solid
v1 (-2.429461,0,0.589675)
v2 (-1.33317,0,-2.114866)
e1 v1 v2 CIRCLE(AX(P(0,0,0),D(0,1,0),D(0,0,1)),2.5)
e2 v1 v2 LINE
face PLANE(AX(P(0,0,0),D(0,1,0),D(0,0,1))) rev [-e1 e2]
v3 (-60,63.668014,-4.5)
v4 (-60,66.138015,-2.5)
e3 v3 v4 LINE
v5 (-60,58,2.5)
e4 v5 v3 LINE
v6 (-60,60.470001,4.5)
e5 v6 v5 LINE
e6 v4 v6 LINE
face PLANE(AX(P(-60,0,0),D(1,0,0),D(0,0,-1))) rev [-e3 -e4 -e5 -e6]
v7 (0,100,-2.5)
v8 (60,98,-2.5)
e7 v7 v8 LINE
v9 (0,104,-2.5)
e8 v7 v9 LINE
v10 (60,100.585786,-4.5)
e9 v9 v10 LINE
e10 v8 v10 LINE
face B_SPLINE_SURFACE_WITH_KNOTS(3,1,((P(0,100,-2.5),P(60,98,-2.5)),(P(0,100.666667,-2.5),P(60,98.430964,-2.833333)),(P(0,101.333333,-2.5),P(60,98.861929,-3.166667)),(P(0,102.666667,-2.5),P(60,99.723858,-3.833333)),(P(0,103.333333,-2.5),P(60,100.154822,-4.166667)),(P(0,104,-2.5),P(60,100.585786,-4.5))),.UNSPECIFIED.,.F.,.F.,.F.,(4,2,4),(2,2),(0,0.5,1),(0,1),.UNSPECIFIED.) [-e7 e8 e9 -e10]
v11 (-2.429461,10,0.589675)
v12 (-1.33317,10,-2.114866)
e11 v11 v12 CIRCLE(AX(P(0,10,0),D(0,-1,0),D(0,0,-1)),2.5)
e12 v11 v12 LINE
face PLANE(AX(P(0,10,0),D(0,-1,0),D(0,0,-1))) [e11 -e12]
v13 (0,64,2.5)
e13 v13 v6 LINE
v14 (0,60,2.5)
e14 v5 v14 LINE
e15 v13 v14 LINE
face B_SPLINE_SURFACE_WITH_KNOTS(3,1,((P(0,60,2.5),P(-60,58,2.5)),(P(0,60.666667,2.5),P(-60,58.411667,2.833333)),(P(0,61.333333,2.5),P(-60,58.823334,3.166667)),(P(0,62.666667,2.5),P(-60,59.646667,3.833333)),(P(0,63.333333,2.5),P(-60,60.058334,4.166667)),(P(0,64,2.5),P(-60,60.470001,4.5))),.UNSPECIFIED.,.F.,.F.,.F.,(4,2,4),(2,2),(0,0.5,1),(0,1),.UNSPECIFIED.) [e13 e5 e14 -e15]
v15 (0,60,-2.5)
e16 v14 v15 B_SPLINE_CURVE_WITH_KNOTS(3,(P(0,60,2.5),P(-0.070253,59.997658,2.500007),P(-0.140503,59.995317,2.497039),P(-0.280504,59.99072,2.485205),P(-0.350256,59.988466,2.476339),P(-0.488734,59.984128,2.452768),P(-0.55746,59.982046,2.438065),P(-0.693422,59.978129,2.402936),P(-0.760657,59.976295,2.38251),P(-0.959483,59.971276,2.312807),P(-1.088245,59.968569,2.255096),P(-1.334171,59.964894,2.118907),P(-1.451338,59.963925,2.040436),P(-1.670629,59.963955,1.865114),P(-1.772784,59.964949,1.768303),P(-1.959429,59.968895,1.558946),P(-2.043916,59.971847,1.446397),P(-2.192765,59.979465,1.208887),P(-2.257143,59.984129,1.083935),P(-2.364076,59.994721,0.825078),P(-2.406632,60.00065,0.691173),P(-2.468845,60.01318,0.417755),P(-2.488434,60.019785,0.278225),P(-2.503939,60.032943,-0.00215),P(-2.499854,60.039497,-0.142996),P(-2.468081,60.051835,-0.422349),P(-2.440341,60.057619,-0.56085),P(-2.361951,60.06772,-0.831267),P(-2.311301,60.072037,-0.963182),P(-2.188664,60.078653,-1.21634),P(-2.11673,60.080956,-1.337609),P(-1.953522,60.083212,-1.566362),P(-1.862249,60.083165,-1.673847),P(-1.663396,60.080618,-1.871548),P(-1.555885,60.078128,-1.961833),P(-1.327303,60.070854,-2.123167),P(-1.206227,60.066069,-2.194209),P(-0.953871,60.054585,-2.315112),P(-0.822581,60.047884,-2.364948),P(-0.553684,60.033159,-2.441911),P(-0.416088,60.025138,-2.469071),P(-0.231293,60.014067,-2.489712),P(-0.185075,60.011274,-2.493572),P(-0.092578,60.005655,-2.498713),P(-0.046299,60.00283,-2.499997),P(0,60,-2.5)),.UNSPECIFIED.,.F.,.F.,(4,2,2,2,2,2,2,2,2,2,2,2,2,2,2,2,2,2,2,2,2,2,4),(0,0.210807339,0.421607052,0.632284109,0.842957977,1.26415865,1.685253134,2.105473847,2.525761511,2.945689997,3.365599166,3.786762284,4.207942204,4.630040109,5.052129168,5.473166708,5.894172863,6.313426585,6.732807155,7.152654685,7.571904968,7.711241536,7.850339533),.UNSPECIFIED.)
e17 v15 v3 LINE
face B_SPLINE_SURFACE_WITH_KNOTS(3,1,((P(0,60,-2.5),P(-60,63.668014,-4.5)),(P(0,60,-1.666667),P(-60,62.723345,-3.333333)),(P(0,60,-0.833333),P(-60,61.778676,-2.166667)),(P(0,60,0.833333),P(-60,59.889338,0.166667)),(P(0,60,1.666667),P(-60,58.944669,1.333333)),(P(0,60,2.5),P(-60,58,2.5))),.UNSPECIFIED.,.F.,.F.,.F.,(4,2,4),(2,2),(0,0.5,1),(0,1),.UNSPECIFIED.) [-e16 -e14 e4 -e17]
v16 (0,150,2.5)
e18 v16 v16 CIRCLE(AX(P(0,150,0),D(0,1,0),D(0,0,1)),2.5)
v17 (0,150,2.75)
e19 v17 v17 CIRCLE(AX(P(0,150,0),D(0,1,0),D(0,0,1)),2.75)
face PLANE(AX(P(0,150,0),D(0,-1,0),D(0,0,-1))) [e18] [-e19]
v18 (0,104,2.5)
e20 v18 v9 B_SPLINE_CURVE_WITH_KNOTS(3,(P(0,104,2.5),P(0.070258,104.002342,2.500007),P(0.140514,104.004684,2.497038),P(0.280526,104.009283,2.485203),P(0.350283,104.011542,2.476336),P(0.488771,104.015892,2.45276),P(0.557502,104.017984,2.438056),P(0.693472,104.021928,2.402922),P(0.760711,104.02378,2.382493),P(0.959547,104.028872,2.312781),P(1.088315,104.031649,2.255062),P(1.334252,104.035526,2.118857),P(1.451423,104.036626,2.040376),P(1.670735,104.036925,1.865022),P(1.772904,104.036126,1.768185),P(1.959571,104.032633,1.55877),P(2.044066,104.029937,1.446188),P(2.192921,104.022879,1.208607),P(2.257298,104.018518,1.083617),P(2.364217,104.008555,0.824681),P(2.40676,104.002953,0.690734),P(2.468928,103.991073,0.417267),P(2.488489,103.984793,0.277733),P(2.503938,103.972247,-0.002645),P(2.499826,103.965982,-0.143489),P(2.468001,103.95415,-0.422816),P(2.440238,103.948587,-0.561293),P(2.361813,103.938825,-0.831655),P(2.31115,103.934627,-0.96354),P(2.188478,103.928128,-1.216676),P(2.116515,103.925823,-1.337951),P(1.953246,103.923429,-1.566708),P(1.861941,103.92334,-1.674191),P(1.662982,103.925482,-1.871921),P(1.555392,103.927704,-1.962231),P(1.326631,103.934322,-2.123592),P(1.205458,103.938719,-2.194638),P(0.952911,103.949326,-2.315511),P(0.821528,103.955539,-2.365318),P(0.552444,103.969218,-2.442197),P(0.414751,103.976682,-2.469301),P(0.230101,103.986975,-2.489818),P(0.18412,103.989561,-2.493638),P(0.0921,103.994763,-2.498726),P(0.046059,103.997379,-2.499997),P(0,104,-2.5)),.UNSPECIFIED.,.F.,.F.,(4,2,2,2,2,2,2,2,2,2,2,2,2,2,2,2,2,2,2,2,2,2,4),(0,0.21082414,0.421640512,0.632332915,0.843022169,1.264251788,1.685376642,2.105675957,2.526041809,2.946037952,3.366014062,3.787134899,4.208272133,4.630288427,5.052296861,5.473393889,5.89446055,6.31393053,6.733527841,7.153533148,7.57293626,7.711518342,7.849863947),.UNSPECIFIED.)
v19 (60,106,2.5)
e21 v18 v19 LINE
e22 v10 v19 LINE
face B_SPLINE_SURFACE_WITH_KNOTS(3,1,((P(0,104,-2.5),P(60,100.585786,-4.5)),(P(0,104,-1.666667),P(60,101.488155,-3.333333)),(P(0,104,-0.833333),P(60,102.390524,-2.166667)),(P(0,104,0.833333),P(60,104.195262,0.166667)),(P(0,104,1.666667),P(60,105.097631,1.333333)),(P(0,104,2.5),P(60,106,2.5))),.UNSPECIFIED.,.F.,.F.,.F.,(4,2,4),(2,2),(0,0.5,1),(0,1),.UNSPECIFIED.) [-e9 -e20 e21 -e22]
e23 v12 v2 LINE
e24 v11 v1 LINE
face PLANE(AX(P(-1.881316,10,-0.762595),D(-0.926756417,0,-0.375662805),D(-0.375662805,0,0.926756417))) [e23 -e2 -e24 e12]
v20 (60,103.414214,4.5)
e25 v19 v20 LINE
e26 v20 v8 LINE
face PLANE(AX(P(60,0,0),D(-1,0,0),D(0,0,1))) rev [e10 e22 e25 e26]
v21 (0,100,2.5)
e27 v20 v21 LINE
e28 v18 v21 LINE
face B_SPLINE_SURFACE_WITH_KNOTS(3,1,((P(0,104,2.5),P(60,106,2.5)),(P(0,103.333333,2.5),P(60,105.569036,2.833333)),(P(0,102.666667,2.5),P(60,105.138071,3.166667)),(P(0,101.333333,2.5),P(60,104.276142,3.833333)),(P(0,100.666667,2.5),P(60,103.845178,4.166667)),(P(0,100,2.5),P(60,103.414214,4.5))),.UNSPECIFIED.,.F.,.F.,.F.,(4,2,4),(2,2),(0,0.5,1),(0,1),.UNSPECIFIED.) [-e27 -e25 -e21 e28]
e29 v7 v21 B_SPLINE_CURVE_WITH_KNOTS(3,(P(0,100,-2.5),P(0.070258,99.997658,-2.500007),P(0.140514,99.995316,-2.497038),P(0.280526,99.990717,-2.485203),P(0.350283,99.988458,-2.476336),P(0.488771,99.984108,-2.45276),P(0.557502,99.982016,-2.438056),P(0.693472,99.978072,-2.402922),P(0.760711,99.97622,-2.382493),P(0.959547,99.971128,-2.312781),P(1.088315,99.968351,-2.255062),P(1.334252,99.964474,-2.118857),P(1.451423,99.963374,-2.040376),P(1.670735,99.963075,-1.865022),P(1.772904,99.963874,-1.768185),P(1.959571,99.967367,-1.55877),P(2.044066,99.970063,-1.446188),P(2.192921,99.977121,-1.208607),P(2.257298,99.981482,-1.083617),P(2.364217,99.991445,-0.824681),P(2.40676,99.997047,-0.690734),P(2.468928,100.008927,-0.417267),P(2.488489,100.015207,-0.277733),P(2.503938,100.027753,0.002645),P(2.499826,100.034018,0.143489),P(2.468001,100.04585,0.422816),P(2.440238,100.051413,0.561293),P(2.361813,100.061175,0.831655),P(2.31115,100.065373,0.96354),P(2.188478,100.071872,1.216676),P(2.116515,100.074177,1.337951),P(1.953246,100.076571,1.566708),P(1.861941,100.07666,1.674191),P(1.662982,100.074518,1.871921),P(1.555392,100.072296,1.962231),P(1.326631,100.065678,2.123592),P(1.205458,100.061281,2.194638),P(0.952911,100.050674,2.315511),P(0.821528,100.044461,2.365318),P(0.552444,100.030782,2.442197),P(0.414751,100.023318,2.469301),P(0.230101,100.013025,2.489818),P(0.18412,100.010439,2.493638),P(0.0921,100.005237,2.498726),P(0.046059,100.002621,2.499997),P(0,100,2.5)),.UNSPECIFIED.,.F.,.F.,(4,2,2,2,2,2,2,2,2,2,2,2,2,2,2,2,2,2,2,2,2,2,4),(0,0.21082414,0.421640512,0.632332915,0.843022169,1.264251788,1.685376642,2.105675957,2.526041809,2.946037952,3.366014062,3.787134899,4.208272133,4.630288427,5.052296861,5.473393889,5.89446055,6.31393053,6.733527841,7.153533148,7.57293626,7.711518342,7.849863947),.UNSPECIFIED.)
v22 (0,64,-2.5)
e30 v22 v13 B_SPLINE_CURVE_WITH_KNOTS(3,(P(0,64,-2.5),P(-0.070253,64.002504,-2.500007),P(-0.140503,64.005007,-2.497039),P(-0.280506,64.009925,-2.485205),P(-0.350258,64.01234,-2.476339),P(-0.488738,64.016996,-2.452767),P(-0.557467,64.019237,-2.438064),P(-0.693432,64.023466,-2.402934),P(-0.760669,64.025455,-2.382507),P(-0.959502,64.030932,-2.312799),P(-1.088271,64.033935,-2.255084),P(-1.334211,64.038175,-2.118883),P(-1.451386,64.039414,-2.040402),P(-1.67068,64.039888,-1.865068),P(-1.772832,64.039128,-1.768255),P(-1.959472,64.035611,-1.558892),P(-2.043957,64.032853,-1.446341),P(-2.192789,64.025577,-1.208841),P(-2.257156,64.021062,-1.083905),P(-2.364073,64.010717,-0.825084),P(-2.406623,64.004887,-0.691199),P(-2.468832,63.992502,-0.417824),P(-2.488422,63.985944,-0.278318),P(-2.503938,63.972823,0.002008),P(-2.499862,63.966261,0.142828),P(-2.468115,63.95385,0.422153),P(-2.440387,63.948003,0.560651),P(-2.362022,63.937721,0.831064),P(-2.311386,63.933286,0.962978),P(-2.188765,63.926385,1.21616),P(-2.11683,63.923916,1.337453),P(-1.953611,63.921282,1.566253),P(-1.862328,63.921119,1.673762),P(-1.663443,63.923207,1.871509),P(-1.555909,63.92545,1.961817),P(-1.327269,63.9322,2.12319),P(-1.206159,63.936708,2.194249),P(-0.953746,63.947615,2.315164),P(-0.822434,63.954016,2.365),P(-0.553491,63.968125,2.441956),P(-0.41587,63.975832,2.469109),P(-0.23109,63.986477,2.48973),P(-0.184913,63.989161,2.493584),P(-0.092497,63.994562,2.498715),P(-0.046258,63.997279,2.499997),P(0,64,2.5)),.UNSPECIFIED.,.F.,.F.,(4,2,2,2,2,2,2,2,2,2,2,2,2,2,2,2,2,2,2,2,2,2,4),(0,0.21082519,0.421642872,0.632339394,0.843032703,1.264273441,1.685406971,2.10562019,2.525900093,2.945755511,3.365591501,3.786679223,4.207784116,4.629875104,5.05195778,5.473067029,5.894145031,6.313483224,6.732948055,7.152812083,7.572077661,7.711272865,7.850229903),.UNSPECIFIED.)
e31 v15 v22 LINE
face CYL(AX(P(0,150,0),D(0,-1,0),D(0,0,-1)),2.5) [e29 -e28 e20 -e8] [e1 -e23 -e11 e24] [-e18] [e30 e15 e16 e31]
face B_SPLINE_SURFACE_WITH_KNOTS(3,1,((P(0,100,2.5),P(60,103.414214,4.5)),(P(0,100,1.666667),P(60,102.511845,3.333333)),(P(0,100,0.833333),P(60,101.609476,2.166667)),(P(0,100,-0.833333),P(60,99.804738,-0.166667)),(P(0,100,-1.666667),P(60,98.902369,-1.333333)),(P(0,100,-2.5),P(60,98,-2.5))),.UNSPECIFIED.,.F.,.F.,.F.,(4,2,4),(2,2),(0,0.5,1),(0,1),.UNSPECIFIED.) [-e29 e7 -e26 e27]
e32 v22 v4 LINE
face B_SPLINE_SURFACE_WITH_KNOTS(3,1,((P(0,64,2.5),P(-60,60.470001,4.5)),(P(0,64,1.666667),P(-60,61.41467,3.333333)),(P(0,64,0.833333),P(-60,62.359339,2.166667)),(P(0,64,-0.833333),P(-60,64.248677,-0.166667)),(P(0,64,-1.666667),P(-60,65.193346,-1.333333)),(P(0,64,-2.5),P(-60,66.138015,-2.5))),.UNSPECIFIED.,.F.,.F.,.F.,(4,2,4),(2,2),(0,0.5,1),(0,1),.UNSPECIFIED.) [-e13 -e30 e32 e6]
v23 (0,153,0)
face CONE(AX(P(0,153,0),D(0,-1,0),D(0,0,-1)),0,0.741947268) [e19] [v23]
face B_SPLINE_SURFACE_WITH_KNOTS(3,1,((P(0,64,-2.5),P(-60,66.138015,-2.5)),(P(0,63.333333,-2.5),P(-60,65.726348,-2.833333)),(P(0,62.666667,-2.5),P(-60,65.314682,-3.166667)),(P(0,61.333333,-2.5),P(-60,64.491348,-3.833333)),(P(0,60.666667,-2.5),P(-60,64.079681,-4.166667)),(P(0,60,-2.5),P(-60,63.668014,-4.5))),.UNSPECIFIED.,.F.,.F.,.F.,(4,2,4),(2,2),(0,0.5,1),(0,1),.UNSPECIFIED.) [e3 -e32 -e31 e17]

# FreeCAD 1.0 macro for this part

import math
import FreeCAD as App
import Part
import Sketcher
from FreeCAD import Vector

doc = App.newDocument("Part")
params = doc.addObject("Spreadsheet::Sheet", "Params")
for row, (alias, value) in enumerate([
    ("sketch1_diameter", "5 mm"),
    ("pad1_length", "150 mm"),
    ("sketch2_width", "3 mm"),
    ("sketch2_height", "2.75 mm"),
    ("revolution_angle", "360 deg"),
    ("sketch3_radius", "2.51 mm"),
    ("pocket1_length", "10 mm"),
    ("sketch4_width", "4 mm"),
    ("sketch4_height", "5 mm"),
    ("sketch6_width", "4 mm"),
    ("sketch6_height", "5 mm"),
], start=1):
    params.set(f"A{row}", alias)
    params.set(f"B{row}", "=" + value)
    params.setAlias(f"B{row}", alias)

body = doc.addObject("PartDesign::Body", "Body")

sketch1 = body.newObject("Sketcher::SketchObject", "Sketch")
sketch1.AttachmentSupport = (doc.getObject("XZ_Plane"), [""])
sketch1.MapMode = "FlatFace"
sketch1.addGeometry(Part.Circle(Vector(0, 0, 0), Vector(0, 0, 1), 2.5), False)
sketch1.addConstraint([
    Sketcher.Constraint("Coincident", 0, 3, -1, 1),
    Sketcher.Constraint("Diameter", 0, 5.0),
])
sketch1.setExpression("Constraints[1]", "Params.sketch1_diameter")
pad1 = body.newObject("PartDesign::Pad", "Pad")
pad1.Profile = sketch1
pad1.setExpression("Length", "Params.pad1_length")
pad1.Reversed = True

sketch2 = body.newObject("Sketcher::SketchObject", "Sketch001")
sketch2.AttachmentSupport = (doc.getObject("YZ_Plane"), [""])
sketch2.MapMode = "FlatFace"
sketch2.addGeometry([
    Part.LineSegment(Vector(150, 2.8, 0), Vector(150, 0, 0)),
    Part.LineSegment(Vector(150, 0, 0), Vector(153, 0, 0)),
    Part.LineSegment(Vector(153, 0, 0), Vector(150, 2.8, 0)),
], False)
sketch2.addConstraint([
    Sketcher.Constraint("Coincident", 0, 2, 1, 1),
    Sketcher.Constraint("Coincident", 1, 2, 2, 1),
    Sketcher.Constraint("Coincident", 2, 2, 0, 1),
    Sketcher.Constraint("Vertical", 0),
    Sketcher.Constraint("Horizontal", 1),
    Sketcher.Constraint("PointOnObject", 0, 2, -1),
    Sketcher.Constraint("DistanceX", 1, 1, 1, 2, 3.0),
    Sketcher.Constraint("DistanceX", -1, 1, 0, 2, 150.0),
    Sketcher.Constraint("DistanceY", 0, 2, 0, 1, 2.75),
])
sketch2.setExpression("Constraints[6]", "Params.sketch2_width")
sketch2.setExpression("Constraints[8]", "Params.sketch2_height")
revolution = body.newObject("PartDesign::Revolution", "Revolution")
revolution.Profile = sketch2
revolution.ReferenceAxis = (sketch2, ["H_Axis"])
revolution.setExpression("Angle", "Params.revolution_angle")

sketch3 = body.newObject("Sketcher::SketchObject", "Sketch002")
sketch3.AttachmentSupport = (doc.getObject("XZ_Plane"), [""])
sketch3.MapMode = "FlatFace"
sketch3.addGeometry([
    Part.LineSegment(Vector(-1.3, -2.1, 0), Vector(-2.4, 0.6, 0)),
    Part.ArcOfCircle(Part.Circle(Vector(0, 0, 0), Vector(0, 0, 1), 2.5), math.radians(166), math.radians(238)),
], False)
sketch3.addConstraint([
    Sketcher.Constraint("Coincident", 0, 1, 1, 2),
    Sketcher.Constraint("Coincident", 1, 1, 0, 2),
    Sketcher.Constraint("Coincident", 1, 3, -1, 1),
    Sketcher.Constraint("Radius", 1, 2.51),
    Sketcher.Constraint("Distance", 0, 2.952423),
    Sketcher.Constraint("DistanceX", 0, 1, -1, 1, 1.326758),
])
sketch3.setExpression("Constraints[3]", "Params.sketch3_radius")
pocket1 = body.newObject("PartDesign::Pocket", "Pocket")
pocket1.Profile = sketch3
pocket1.setExpression("Length", "Params.pocket1_length")

sketch4 = body.newObject("Sketcher::SketchObject", "Sketch003")
sketch4.AttachmentSupport = (doc.getObject("YZ_Plane"), [""])
sketch4.MapMode = "FlatFace"
sketch4.addGeometry([
    Part.LineSegment(Vector(60, 2.5, 0), Vector(60, -2.5, 0)),
    Part.LineSegment(Vector(60, -2.5, 0), Vector(64, -2.5, 0)),
    Part.LineSegment(Vector(64, -2.5, 0), Vector(64, 2.5, 0)),
    Part.LineSegment(Vector(64, 2.5, 0), Vector(60, 2.5, 0)),
], False)
sketch4.addConstraint([
    Sketcher.Constraint("Coincident", 0, 2, 1, 1),
    Sketcher.Constraint("Coincident", 1, 2, 2, 1),
    Sketcher.Constraint("Coincident", 2, 2, 3, 1),
    Sketcher.Constraint("Coincident", 3, 2, 0, 1),
    Sketcher.Constraint("Vertical", 0),
    Sketcher.Constraint("Horizontal", 1),
    Sketcher.Constraint("Vertical", 2),
    Sketcher.Constraint("Horizontal", 3),
    Sketcher.Constraint("DistanceX", 1, 1, 1, 2, 4.0),
    Sketcher.Constraint("DistanceY", 0, 2, 0, 1, 5.0),
    Sketcher.Constraint("DistanceX", -1, 1, 0, 2, 60.0),
    Sketcher.Constraint("DistanceY", 0, 2, -1, 1, 2.5),
])
sketch4.setExpression("Constraints[8]", "Params.sketch4_width")
sketch4.setExpression("Constraints[9]", "Params.sketch4_height")

sketch5 = body.newObject("Sketcher::SketchObject", "Sketch004")
sketch5.AttachmentSupport = (doc.getObject("YZ_Plane"), [""])
sketch5.MapMode = "FlatFace"
sketch5.AttachmentOffset = App.Placement(Vector(0, 0, -60), App.Rotation())
sketch5.addGeometry([
    Part.LineSegment(Vector(58, 2.5, 0), Vector(63.7, -4.5, 0)),
    Part.LineSegment(Vector(63.7, -4.5, 0), Vector(66.1, -2.5, 0)),
    Part.LineSegment(Vector(66.1, -2.5, 0), Vector(60.5, 4.5, 0)),
    Part.LineSegment(Vector(60.5, 4.5, 0), Vector(58, 2.5, 0)),
], False)
sketch5.addConstraint([
    Sketcher.Constraint("Coincident", 0, 2, 1, 1),
    Sketcher.Constraint("Coincident", 1, 2, 2, 1),
    Sketcher.Constraint("Coincident", 2, 2, 3, 1),
    Sketcher.Constraint("Coincident", 3, 2, 0, 1),
    Sketcher.Constraint("Perpendicular", 0, 1),
    Sketcher.Constraint("Perpendicular", 1, 2),
    Sketcher.Constraint("Perpendicular", 2, 3),
    Sketcher.Constraint("DistanceX", -1, 1, 3, 2, 58.0),
    Sketcher.Constraint("DistanceY", 0, 2, 1, 2, 2.0),
    Sketcher.Constraint("DistanceY", 1, 2, 2, 2, 7.0),
    Sketcher.Constraint("DistanceY", 0, 2, -1, 1, 4.5),
    Sketcher.Constraint("DistanceX", -1, 1, 2, 2, 60.470001),
])

additiveloft = body.newObject("PartDesign::AdditiveLoft", "AdditiveLoft")
additiveloft.Profile = sketch4
additiveloft.Sections = [sketch5]

sketch6 = body.newObject("Sketcher::SketchObject", "Sketch005")
sketch6.AttachmentSupport = (doc.getObject("YZ_Plane"), [""])
sketch6.MapMode = "FlatFace"
sketch6.addGeometry([
    Part.LineSegment(Vector(100, 2.5, 0), Vector(100, -2.5, 0)),
    Part.LineSegment(Vector(100, -2.5, 0), Vector(104, -2.5, 0)),
    Part.LineSegment(Vector(104, -2.5, 0), Vector(104, 2.5, 0)),
    Part.LineSegment(Vector(104, 2.5, 0), Vector(100, 2.5, 0)),
], False)
sketch6.addConstraint([
    Sketcher.Constraint("Coincident", 0, 2, 1, 1),
    Sketcher.Constraint("Coincident", 1, 2, 2, 1),
    Sketcher.Constraint("Coincident", 2, 2, 3, 1),
    Sketcher.Constraint("Coincident", 3, 2, 0, 1),
    Sketcher.Constraint("Vertical", 0),
    Sketcher.Constraint("Horizontal", 1),
    Sketcher.Constraint("Vertical", 2),
    Sketcher.Constraint("Horizontal", 3),
    Sketcher.Constraint("DistanceX", 1, 1, 1, 2, 4.0),
    Sketcher.Constraint("DistanceY", 0, 2, 0, 1, 5.0),
    Sketcher.Constraint("DistanceX", -1, 1, 0, 2, 100.0),
    Sketcher.Constraint("DistanceY", 0, 2, -1, 1, 2.5),
])
sketch6.setExpression("Constraints[8]", "Params.sketch6_width")
sketch6.setExpression("Constraints[9]", "Params.sketch6_height")

sketch7 = body.newObject("Sketcher::SketchObject", "Sketch006")
sketch7.AttachmentSupport = (doc.getObject("YZ_Plane"), [""])
sketch7.MapMode = "FlatFace"
sketch7.AttachmentOffset = App.Placement(Vector(0, 0, 60), App.Rotation())
sketch7.addGeometry([
    Part.LineSegment(Vector(106, 2.5, 0), Vector(103.4, 4.5, 0)),
    Part.LineSegment(Vector(103.4, 4.5, 0), Vector(98, -2.5, 0)),
    Part.LineSegment(Vector(98, -2.5, 0), Vector(100.6, -4.5, 0)),
    Part.LineSegment(Vector(100.6, -4.5, 0), Vector(106, 2.5, 0)),
], False)
sketch7.addConstraint([
    Sketcher.Constraint("Coincident", 0, 2, 1, 1),
    Sketcher.Constraint("Coincident", 1, 2, 2, 1),
    Sketcher.Constraint("Coincident", 2, 2, 3, 1),
    Sketcher.Constraint("Coincident", 3, 2, 0, 1),
    Sketcher.Constraint("Perpendicular", 0, 1),
    Sketcher.Constraint("Perpendicular", 1, 2),
    Sketcher.Constraint("Perpendicular", 2, 3),
    Sketcher.Constraint("DistanceX", -1, 1, 1, 2, 98.0),
    Sketcher.Constraint("DistanceX", -1, 1, 3, 2, 106.0),
    Sketcher.Constraint("DistanceY", 1, 2, 0, 2, 7.0),
    Sketcher.Constraint("DistanceY", 2, 2, 1, 2, 2.0),
    Sketcher.Constraint("DistanceY", -1, 1, 0, 2, 4.5),
])

additiveloft2 = body.newObject("PartDesign::AdditiveLoft", "AdditiveLoft001")
additiveloft2.Profile = sketch6
additiveloft2.Sections = [sketch7]

doc.recompute()
